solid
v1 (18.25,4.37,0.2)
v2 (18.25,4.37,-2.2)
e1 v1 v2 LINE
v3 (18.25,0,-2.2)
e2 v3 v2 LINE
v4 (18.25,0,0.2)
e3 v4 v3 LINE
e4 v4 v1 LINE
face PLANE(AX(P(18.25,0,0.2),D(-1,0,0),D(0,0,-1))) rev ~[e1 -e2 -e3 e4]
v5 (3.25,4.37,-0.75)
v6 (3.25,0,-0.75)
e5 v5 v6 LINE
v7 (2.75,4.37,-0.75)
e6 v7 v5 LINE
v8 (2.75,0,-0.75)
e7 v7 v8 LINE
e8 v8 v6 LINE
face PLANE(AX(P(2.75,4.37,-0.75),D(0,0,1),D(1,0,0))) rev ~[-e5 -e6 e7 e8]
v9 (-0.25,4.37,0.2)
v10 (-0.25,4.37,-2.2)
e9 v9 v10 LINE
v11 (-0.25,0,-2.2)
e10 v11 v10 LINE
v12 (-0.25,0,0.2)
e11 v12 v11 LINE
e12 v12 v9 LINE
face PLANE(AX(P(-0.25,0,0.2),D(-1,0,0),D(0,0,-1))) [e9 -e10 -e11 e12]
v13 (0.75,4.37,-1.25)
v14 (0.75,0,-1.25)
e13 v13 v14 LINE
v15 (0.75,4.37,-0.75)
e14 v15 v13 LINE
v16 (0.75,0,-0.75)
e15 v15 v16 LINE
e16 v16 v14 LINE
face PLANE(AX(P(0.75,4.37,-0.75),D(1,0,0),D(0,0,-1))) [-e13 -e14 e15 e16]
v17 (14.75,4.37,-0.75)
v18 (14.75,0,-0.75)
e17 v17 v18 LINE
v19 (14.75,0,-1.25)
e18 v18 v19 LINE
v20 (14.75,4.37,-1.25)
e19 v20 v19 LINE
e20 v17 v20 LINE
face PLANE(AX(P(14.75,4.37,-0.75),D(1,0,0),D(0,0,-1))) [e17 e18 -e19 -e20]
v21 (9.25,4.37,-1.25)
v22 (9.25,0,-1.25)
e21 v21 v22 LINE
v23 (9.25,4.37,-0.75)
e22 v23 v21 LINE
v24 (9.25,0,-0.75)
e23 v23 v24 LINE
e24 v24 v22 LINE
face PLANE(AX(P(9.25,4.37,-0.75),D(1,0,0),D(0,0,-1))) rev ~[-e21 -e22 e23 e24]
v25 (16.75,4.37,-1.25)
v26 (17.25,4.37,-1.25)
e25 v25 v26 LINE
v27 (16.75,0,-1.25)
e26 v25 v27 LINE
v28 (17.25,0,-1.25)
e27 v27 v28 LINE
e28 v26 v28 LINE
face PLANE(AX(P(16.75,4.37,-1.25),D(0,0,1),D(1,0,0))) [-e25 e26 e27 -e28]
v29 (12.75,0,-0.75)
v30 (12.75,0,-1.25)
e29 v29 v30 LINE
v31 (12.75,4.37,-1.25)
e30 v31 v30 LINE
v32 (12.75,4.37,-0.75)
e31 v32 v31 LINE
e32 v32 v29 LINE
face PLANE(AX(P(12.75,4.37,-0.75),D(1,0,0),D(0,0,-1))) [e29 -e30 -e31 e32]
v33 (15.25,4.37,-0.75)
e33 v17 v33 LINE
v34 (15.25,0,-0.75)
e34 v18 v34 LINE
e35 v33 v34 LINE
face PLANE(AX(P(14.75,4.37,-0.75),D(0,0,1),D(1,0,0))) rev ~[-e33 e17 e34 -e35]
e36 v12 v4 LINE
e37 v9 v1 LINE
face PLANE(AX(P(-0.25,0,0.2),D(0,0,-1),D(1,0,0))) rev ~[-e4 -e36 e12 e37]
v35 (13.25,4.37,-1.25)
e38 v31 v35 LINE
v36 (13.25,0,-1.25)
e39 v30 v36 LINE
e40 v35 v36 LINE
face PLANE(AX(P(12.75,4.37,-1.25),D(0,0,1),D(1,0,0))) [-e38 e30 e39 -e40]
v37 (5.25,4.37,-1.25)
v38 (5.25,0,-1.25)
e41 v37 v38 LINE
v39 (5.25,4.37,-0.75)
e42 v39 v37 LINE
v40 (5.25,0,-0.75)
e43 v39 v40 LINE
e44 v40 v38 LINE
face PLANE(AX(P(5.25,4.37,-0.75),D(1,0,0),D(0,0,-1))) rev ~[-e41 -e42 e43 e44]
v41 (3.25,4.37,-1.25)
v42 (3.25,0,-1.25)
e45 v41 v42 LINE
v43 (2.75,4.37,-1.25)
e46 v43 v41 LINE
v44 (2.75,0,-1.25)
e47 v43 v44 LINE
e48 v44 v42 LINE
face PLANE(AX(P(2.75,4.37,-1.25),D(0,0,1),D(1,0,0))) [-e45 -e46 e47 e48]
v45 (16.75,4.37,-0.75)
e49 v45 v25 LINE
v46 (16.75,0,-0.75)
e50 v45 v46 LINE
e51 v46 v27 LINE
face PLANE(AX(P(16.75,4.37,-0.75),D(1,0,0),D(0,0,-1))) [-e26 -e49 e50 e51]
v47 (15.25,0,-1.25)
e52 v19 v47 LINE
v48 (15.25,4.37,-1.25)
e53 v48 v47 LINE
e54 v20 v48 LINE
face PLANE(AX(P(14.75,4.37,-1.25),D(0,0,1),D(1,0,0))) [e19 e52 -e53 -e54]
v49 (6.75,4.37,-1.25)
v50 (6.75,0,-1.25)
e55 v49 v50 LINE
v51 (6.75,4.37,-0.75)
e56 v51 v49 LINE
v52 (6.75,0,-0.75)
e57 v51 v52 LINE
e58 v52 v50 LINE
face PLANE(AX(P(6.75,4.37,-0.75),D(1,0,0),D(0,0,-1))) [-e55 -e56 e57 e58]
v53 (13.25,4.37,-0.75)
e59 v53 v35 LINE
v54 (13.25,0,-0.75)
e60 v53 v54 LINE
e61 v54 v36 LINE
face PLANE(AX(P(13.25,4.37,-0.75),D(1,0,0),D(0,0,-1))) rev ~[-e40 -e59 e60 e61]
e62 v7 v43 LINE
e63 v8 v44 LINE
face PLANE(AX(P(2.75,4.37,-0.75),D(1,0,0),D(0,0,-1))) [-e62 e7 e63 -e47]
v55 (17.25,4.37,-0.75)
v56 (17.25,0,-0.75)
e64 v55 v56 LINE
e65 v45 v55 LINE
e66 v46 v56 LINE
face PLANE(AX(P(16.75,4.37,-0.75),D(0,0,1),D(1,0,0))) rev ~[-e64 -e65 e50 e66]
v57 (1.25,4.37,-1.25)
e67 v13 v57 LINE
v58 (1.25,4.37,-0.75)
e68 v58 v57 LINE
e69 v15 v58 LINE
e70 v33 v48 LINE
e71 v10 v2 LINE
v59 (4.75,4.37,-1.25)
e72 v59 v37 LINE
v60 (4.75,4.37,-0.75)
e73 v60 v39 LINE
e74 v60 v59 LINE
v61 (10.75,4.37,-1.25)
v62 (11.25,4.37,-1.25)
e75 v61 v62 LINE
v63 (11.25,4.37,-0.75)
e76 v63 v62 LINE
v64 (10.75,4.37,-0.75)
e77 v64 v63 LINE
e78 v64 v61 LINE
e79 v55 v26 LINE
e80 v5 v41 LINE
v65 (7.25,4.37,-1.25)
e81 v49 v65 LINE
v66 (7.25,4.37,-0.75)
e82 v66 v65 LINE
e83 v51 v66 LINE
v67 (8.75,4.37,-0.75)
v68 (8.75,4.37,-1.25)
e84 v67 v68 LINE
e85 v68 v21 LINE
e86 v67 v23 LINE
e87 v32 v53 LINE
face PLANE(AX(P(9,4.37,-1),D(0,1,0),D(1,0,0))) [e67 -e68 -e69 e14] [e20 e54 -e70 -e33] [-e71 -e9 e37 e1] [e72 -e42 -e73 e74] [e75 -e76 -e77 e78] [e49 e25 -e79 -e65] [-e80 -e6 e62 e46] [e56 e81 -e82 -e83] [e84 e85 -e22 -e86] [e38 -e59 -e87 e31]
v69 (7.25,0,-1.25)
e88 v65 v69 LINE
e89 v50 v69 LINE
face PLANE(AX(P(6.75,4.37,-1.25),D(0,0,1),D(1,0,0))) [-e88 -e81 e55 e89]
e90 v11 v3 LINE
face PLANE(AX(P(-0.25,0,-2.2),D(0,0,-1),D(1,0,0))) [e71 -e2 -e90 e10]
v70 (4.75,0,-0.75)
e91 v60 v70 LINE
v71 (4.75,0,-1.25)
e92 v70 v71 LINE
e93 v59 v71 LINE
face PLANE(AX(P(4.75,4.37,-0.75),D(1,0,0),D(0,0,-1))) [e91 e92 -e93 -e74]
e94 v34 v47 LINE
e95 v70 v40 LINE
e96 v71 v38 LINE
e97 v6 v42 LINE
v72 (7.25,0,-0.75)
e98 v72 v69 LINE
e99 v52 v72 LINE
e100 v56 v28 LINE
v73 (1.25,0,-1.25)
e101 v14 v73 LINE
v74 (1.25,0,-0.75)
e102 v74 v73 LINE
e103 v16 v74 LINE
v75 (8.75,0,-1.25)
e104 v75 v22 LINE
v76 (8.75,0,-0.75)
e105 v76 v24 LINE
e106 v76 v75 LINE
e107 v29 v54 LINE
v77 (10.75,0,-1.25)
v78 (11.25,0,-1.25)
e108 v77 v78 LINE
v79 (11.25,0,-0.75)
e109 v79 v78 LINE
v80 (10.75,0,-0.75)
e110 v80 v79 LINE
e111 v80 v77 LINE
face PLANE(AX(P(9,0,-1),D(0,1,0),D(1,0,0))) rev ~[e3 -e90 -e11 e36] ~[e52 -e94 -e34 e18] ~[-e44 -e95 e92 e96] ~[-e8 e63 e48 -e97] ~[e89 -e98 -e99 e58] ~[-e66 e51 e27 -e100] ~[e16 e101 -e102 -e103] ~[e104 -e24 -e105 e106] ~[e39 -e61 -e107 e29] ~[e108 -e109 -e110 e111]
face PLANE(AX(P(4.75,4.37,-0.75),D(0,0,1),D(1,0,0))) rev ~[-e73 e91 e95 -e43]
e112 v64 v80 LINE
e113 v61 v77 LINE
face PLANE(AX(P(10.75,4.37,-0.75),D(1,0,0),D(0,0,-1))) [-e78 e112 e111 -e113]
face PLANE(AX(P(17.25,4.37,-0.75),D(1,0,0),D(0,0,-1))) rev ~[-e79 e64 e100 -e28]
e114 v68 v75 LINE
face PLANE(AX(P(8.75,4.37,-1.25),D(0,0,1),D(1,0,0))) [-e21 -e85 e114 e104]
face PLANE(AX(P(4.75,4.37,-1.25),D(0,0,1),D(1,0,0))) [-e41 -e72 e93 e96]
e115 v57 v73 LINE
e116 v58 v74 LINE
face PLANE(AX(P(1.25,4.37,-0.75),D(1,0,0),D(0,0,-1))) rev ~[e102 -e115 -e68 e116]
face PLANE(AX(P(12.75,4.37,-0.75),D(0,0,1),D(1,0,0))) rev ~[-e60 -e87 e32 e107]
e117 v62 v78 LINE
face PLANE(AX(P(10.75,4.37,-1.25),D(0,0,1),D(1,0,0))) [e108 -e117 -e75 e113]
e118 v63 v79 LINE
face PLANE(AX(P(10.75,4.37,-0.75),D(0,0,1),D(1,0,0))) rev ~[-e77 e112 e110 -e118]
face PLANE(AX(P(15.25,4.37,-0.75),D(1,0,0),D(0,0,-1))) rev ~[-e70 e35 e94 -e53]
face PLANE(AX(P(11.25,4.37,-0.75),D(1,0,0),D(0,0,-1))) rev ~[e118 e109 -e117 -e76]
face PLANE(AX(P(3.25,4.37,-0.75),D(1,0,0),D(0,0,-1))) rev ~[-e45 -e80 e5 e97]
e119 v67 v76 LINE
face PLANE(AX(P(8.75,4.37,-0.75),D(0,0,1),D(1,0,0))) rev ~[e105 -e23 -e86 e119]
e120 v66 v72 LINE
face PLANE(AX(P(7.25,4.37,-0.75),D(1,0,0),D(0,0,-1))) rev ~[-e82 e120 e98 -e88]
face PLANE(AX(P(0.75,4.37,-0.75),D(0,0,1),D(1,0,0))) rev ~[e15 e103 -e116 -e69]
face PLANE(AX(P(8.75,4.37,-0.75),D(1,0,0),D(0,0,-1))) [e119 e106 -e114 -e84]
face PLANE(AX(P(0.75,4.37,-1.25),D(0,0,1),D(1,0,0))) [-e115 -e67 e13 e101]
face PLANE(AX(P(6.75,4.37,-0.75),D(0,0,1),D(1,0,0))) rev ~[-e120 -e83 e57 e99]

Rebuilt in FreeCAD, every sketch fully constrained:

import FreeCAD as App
import Part
import Sketcher
Q = App.Units.Quantity

doc = App.newDocument("Part")
params = doc.addObject("Spreadsheet::Sheet", "Params")
for row, (alias, value) in enumerate([
    ("sketch1_width", "18.5 mm"),
    ("sketch1_height", "2.4 mm"),
    ("pad1_length", "4.37 mm"),
    ("sketch2_width", "0.5 mm"),
    ("pocket1_length", "4.37 mm"),
], start=1):
    params.set(f"A{row}", alias)
    params.set(f"B{row}", "=" + value)
    params.setAlias(f"B{row}", alias)

body = doc.addObject("PartDesign::Body", "Body")

# Sketch on XZ plane
sketch1 = doc.addObject("Sketcher::SketchObject", "Sketch")
body.addObject(sketch1)
sketch1.AttachmentSupport = (doc.XZ_Plane, [""])
sketch1.MapMode = "FlatFace"
sketch1.addGeometry([
    Part.LineSegment(App.Vector(-0.2, -2.2, 0), App.Vector(-0.2, 0.2, 0)),
    Part.LineSegment(App.Vector(-0.2, 0.2, 0), App.Vector(18.2, 0.2, 0)),
    Part.LineSegment(App.Vector(18.2, 0.2, 0), App.Vector(18.2, -2.2, 0)),
    Part.LineSegment(App.Vector(18.2, -2.2, 0), App.Vector(-0.2, -2.2, 0)),
], False)
sketch1.addConstraint([
    Sketcher.Constraint("Coincident", 0, 2, 1, 1),
    Sketcher.Constraint("Coincident", 1, 2, 2, 1),
    Sketcher.Constraint("Coincident", 2, 2, 3, 1),
    Sketcher.Constraint("Coincident", 3, 2, 0, 1),
    Sketcher.Constraint("Vertical", 0),
    Sketcher.Constraint("Horizontal", 1),
    Sketcher.Constraint("Vertical", 2),
    Sketcher.Constraint("Horizontal", 3),
    Sketcher.Constraint("DistanceX", 1, 1, 1, 2, Q("18.5 mm")),
    Sketcher.Constraint("DistanceY", 0, 1, 0, 2, Q("2.4 mm")),
    Sketcher.Constraint("DistanceY", -1, 1, 0, 2, Q("0.2 mm")),
    Sketcher.Constraint("DistanceX", 0, 2, -1, 1, Q("0.25 mm")),
])
sketch1.setExpression("Constraints[8]", "Params.sketch1_width")
sketch1.setExpression("Constraints[9]", "Params.sketch1_height")
pad1 = doc.addObject("PartDesign::Pad", "Pad")
body.addObject(pad1)
pad1.Profile = sketch1
pad1.setExpression("Length", "Params.pad1_length")
pad1.Reversed = True

# Sketch on XZ plane
sketch2 = doc.addObject("Sketcher::SketchObject", "Sketch001")
body.addObject(sketch2)
sketch2.AttachmentSupport = (doc.XZ_Plane, [""])
sketch2.MapMode = "FlatFace"
sketch2.AttachmentOffset = App.Placement(App.Vector(0, 0, -4.37), App.Rotation())
sketch2.addGeometry([
    Part.LineSegment(App.Vector(2.8, -1.2, 0), App.Vector(2.8, -0.8, 0)),  # 0
    Part.LineSegment(App.Vector(2.8, -0.8, 0), App.Vector(3.2, -0.8, 0)),  # 1
    Part.LineSegment(App.Vector(3.2, -0.8, 0), App.Vector(3.2, -1.2, 0)),  # 2
    Part.LineSegment(App.Vector(3.2, -1.2, 0), App.Vector(2.8, -1.2, 0)),  # 3
    Part.LineSegment(App.Vector(0.8, -1.2, 0), App.Vector(0.8, -0.8, 0)),  # 4
    Part.LineSegment(App.Vector(0.8, -0.8, 0), App.Vector(1.2, -0.8, 0)),  # 5
    Part.LineSegment(App.Vector(1.2, -0.8, 0), App.Vector(1.2, -1.2, 0)),  # 6
    Part.LineSegment(App.Vector(1.2, -1.2, 0), App.Vector(0.8, -1.2, 0)),  # 7
    Part.LineSegment(App.Vector(4.8, -1.2, 0), App.Vector(4.8, -0.8, 0)),  # 8
    Part.LineSegment(App.Vector(4.8, -0.8, 0), App.Vector(5.2, -0.8, 0)),  # 9
    Part.LineSegment(App.Vector(5.2, -0.8, 0), App.Vector(5.2, -1.2, 0)),  # 10
    Part.LineSegment(App.Vector(5.2, -1.2, 0), App.Vector(4.8, -1.2, 0)),  # 11
    Part.LineSegment(App.Vector(6.8, -1.2, 0), App.Vector(6.8, -0.8, 0)),  # 12
    Part.LineSegment(App.Vector(6.8, -0.8, 0), App.Vector(7.2, -0.8, 0)),  # 13
    Part.LineSegment(App.Vector(7.2, -0.8, 0), App.Vector(7.2, -1.2, 0)),  # 14
    Part.LineSegment(App.Vector(7.2, -1.2, 0), App.Vector(6.8, -1.2, 0)),  # 15
    Part.LineSegment(App.Vector(8.8, -1.2, 0), App.Vector(8.8, -0.8, 0)),  # 16
    Part.LineSegment(App.Vector(8.8, -0.8, 0), App.Vector(9.2, -0.8, 0)),  # 17
    Part.LineSegment(App.Vector(9.2, -0.8, 0), App.Vector(9.2, -1.2, 0)),  # 18
    Part.LineSegment(App.Vector(9.2, -1.2, 0), App.Vector(8.8, -1.2, 0)),  # 19
    Part.LineSegment(App.Vector(10.8, -1.2, 0), App.Vector(10.8, -0.8, 0)),  # 20
    Part.LineSegment(App.Vector(10.8, -0.8, 0), App.Vector(11.2, -0.8, 0)),  # 21
    Part.LineSegment(App.Vector(11.2, -0.8, 0), App.Vector(11.2, -1.2, 0)),  # 22
    Part.LineSegment(App.Vector(11.2, -1.2, 0), App.Vector(10.8, -1.2, 0)),  # 23
    Part.LineSegment(App.Vector(12.8, -1.2, 0), App.Vector(12.8, -0.8, 0)),  # 24
    Part.LineSegment(App.Vector(12.8, -0.8, 0), App.Vector(13.2, -0.8, 0)),  # 25
    Part.LineSegment(App.Vector(13.2, -0.8, 0), App.Vector(13.2, -1.2, 0)),  # 26
    Part.LineSegment(App.Vector(13.2, -1.2, 0), App.Vector(12.8, -1.2, 0)),  # 27
    Part.LineSegment(App.Vector(14.8, -1.2, 0), App.Vector(14.8, -0.8, 0)),  # 28
    Part.LineSegment(App.Vector(14.8, -0.8, 0), App.Vector(15.2, -0.8, 0)),  # 29
    Part.LineSegment(App.Vector(15.2, -0.8, 0), App.Vector(15.2, -1.2, 0)),  # 30
    Part.LineSegment(App.Vector(15.2, -1.2, 0), App.Vector(14.8, -1.2, 0)),  # 31
    Part.LineSegment(App.Vector(16.8, -1.2, 0), App.Vector(16.8, -0.8, 0)),  # 32
    Part.LineSegment(App.Vector(16.8, -0.8, 0), App.Vector(17.2, -0.8, 0)),  # 33
    Part.LineSegment(App.Vector(17.2, -0.8, 0), App.Vector(17.2, -1.2, 0)),  # 34
    Part.LineSegment(App.Vector(17.2, -1.2, 0), App.Vector(16.8, -1.2, 0)),  # 35
], False)
sketch2.addConstraint([
    Sketcher.Constraint("Coincident", 0, 2, 1, 1),
    Sketcher.Constraint("Coincident", 1, 2, 2, 1),
    Sketcher.Constraint("Coincident", 2, 2, 3, 1),
    Sketcher.Constraint("Coincident", 3, 2, 0, 1),
    Sketcher.Constraint("Coincident", 4, 2, 5, 1),
    Sketcher.Constraint("Coincident", 5, 2, 6, 1),
    Sketcher.Constraint("Coincident", 6, 2, 7, 1),
    Sketcher.Constraint("Coincident", 7, 2, 4, 1),
    Sketcher.Constraint("Coincident", 8, 2, 9, 1),
    Sketcher.Constraint("Coincident", 9, 2, 10, 1),
    Sketcher.Constraint("Coincident", 10, 2, 11, 1),
    Sketcher.Constraint("Coincident", 11, 2, 8, 1),
    Sketcher.Constraint("Coincident", 12, 2, 13, 1),
    Sketcher.Constraint("Coincident", 13, 2, 14, 1),
    Sketcher.Constraint("Coincident", 14, 2, 15, 1),
    Sketcher.Constraint("Coincident", 15, 2, 12, 1),
    Sketcher.Constraint("Coincident", 16, 2, 17, 1),
    Sketcher.Constraint("Coincident", 17, 2, 18, 1),
    Sketcher.Constraint("Coincident", 18, 2, 19, 1),
    Sketcher.Constraint("Coincident", 19, 2, 16, 1),
    Sketcher.Constraint("Coincident", 20, 2, 21, 1),
    Sketcher.Constraint("Coincident", 21, 2, 22, 1),
    Sketcher.Constraint("Coincident", 22, 2, 23, 1),
    Sketcher.Constraint("Coincident", 23, 2, 20, 1),
    Sketcher.Constraint("Coincident", 24, 2, 25, 1),
    Sketcher.Constraint("Coincident", 25, 2, 26, 1),
    Sketcher.Constraint("Coincident", 26, 2, 27, 1),
    Sketcher.Constraint("Coincident", 27, 2, 24, 1),
    Sketcher.Constraint("Coincident", 28, 2, 29, 1),
    Sketcher.Constraint("Coincident", 29, 2, 30, 1),
    Sketcher.Constraint("Coincident", 30, 2, 31, 1),
    Sketcher.Constraint("Coincident", 31, 2, 28, 1),
    Sketcher.Constraint("Coincident", 32, 2, 33, 1),
    Sketcher.Constraint("Coincident", 33, 2, 34, 1),
    Sketcher.Constraint("Coincident", 34, 2, 35, 1),
    Sketcher.Constraint("Coincident", 35, 2, 32, 1),
    Sketcher.Constraint("Vertical", 0),
    Sketcher.Constraint("Horizontal", 1),
    Sketcher.Constraint("Vertical", 2),
    Sketcher.Constraint("Horizontal", 3),
    Sketcher.Constraint("Vertical", 4),
    Sketcher.Constraint("Horizontal", 5),
    Sketcher.Constraint("Vertical", 6),
    Sketcher.Constraint("Horizontal", 7),
    Sketcher.Constraint("Vertical", 8),
    Sketcher.Constraint("Horizontal", 9),
    Sketcher.Constraint("Vertical", 10),
    Sketcher.Constraint("Horizontal", 11),
    Sketcher.Constraint("Vertical", 12),
    Sketcher.Constraint("Horizontal", 13),
    Sketcher.Constraint("Vertical", 14),
    Sketcher.Constraint("Horizontal", 15),
    Sketcher.Constraint("Vertical", 16),
    Sketcher.Constraint("Horizontal", 17),
    Sketcher.Constraint("Vertical", 18),
    Sketcher.Constraint("Horizontal", 19),
    Sketcher.Constraint("Vertical", 20),
    Sketcher.Constraint("Horizontal", 21),
    Sketcher.Constraint("Vertical", 22),
    Sketcher.Constraint("Horizontal", 23),
    Sketcher.Constraint("Vertical", 24),
    Sketcher.Constraint("Horizontal", 25),
    Sketcher.Constraint("Vertical", 26),
    Sketcher.Constraint("Horizontal", 27),
    Sketcher.Constraint("Vertical", 28),
    Sketcher.Constraint("Horizontal", 29),
    Sketcher.Constraint("Vertical", 30),
    Sketcher.Constraint("Horizontal", 31),
    Sketcher.Constraint("Vertical", 32),
    Sketcher.Constraint("Horizontal", 33),
    Sketcher.Constraint("Vertical", 34),
    Sketcher.Constraint("Horizontal", 35),
    Sketcher.Constraint("Horizontal", 1, 2, 4, 2),
    Sketcher.Constraint("Horizontal", 3, 2, 6, 2),
    Sketcher.Constraint("Horizontal", 5, 2, 8, 2),
    Sketcher.Constraint("Horizontal", 7, 2, 10, 2),
    Sketcher.Constraint("Horizontal", 9, 2, 12, 2),
    Sketcher.Constraint("Horizontal", 11, 2, 14, 2),
    Sketcher.Constraint("Horizontal", 13, 2, 16, 2),
    Sketcher.Constraint("Horizontal", 15, 2, 18, 2),
    Sketcher.Constraint("Horizontal", 17, 2, 20, 2),
    Sketcher.Constraint("Horizontal", 19, 2, 22, 2),
    Sketcher.Constraint("Horizontal", 21, 2, 24, 2),
    Sketcher.Constraint("Horizontal", 23, 2, 26, 2),
    Sketcher.Constraint("Horizontal", 25, 2, 28, 2),
    Sketcher.Constraint("Horizontal", 27, 2, 30, 2),
    Sketcher.Constraint("Horizontal", 29, 2, 32, 2),
    Sketcher.Constraint("Horizontal", 31, 2, 34, 2),
    Sketcher.Constraint("Equal", 3, 5),
    Sketcher.Constraint("Equal", 7, 9),
    Sketcher.Constraint("Equal", 11, 13),
    Sketcher.Constraint("Equal", 15, 17),
    Sketcher.Constraint("Equal", 19, 21),
    Sketcher.Constraint("Equal", 23, 25),
    Sketcher.Constraint("Equal", 27, 29),
    Sketcher.Constraint("Equal", 31, 33),
    Sketcher.Constraint("Equal", 35, 0),
    Sketcher.Constraint("DistanceX", 1, 1, 1, 2, Q("0.5 mm")),
    Sketcher.Constraint("DistanceX", 4, 2, 0, 2, Q("2 mm")),
    Sketcher.Constraint("DistanceX", 0, 2, 8, 2, Q("2 mm")),
    Sketcher.Constraint("DistanceX", 8, 2, 12, 2, Q("2 mm")),
    Sketcher.Constraint("DistanceX", 12, 2, 16, 2, Q("2 mm")),
    Sketcher.Constraint("DistanceX", 16, 2, 20, 2, Q("2 mm")),
    Sketcher.Constraint("DistanceX", 20, 2, 24, 2, Q("2 mm")),
    Sketcher.Constraint("DistanceX", 24, 2, 28, 2, Q("2 mm")),
    Sketcher.Constraint("DistanceX", 28, 2, 32, 2, Q("2 mm")),
    Sketcher.Constraint("DistanceX", -1, 1, 0, 2, Q("2.75 mm")),
    Sketcher.Constraint("DistanceY", 0, 2, -1, 1, Q("0.75 mm")),
])
sketch2.setExpression("Constraints[97]", "Params.sketch2_width")
pocket1 = doc.addObject("PartDesign::Pocket", "Pocket")
body.addObject(pocket1)
pocket1.Profile = sketch2
pocket1.setExpression("Length", "Params.pocket1_length")
pocket1.Reversed = True

doc.recompute()
